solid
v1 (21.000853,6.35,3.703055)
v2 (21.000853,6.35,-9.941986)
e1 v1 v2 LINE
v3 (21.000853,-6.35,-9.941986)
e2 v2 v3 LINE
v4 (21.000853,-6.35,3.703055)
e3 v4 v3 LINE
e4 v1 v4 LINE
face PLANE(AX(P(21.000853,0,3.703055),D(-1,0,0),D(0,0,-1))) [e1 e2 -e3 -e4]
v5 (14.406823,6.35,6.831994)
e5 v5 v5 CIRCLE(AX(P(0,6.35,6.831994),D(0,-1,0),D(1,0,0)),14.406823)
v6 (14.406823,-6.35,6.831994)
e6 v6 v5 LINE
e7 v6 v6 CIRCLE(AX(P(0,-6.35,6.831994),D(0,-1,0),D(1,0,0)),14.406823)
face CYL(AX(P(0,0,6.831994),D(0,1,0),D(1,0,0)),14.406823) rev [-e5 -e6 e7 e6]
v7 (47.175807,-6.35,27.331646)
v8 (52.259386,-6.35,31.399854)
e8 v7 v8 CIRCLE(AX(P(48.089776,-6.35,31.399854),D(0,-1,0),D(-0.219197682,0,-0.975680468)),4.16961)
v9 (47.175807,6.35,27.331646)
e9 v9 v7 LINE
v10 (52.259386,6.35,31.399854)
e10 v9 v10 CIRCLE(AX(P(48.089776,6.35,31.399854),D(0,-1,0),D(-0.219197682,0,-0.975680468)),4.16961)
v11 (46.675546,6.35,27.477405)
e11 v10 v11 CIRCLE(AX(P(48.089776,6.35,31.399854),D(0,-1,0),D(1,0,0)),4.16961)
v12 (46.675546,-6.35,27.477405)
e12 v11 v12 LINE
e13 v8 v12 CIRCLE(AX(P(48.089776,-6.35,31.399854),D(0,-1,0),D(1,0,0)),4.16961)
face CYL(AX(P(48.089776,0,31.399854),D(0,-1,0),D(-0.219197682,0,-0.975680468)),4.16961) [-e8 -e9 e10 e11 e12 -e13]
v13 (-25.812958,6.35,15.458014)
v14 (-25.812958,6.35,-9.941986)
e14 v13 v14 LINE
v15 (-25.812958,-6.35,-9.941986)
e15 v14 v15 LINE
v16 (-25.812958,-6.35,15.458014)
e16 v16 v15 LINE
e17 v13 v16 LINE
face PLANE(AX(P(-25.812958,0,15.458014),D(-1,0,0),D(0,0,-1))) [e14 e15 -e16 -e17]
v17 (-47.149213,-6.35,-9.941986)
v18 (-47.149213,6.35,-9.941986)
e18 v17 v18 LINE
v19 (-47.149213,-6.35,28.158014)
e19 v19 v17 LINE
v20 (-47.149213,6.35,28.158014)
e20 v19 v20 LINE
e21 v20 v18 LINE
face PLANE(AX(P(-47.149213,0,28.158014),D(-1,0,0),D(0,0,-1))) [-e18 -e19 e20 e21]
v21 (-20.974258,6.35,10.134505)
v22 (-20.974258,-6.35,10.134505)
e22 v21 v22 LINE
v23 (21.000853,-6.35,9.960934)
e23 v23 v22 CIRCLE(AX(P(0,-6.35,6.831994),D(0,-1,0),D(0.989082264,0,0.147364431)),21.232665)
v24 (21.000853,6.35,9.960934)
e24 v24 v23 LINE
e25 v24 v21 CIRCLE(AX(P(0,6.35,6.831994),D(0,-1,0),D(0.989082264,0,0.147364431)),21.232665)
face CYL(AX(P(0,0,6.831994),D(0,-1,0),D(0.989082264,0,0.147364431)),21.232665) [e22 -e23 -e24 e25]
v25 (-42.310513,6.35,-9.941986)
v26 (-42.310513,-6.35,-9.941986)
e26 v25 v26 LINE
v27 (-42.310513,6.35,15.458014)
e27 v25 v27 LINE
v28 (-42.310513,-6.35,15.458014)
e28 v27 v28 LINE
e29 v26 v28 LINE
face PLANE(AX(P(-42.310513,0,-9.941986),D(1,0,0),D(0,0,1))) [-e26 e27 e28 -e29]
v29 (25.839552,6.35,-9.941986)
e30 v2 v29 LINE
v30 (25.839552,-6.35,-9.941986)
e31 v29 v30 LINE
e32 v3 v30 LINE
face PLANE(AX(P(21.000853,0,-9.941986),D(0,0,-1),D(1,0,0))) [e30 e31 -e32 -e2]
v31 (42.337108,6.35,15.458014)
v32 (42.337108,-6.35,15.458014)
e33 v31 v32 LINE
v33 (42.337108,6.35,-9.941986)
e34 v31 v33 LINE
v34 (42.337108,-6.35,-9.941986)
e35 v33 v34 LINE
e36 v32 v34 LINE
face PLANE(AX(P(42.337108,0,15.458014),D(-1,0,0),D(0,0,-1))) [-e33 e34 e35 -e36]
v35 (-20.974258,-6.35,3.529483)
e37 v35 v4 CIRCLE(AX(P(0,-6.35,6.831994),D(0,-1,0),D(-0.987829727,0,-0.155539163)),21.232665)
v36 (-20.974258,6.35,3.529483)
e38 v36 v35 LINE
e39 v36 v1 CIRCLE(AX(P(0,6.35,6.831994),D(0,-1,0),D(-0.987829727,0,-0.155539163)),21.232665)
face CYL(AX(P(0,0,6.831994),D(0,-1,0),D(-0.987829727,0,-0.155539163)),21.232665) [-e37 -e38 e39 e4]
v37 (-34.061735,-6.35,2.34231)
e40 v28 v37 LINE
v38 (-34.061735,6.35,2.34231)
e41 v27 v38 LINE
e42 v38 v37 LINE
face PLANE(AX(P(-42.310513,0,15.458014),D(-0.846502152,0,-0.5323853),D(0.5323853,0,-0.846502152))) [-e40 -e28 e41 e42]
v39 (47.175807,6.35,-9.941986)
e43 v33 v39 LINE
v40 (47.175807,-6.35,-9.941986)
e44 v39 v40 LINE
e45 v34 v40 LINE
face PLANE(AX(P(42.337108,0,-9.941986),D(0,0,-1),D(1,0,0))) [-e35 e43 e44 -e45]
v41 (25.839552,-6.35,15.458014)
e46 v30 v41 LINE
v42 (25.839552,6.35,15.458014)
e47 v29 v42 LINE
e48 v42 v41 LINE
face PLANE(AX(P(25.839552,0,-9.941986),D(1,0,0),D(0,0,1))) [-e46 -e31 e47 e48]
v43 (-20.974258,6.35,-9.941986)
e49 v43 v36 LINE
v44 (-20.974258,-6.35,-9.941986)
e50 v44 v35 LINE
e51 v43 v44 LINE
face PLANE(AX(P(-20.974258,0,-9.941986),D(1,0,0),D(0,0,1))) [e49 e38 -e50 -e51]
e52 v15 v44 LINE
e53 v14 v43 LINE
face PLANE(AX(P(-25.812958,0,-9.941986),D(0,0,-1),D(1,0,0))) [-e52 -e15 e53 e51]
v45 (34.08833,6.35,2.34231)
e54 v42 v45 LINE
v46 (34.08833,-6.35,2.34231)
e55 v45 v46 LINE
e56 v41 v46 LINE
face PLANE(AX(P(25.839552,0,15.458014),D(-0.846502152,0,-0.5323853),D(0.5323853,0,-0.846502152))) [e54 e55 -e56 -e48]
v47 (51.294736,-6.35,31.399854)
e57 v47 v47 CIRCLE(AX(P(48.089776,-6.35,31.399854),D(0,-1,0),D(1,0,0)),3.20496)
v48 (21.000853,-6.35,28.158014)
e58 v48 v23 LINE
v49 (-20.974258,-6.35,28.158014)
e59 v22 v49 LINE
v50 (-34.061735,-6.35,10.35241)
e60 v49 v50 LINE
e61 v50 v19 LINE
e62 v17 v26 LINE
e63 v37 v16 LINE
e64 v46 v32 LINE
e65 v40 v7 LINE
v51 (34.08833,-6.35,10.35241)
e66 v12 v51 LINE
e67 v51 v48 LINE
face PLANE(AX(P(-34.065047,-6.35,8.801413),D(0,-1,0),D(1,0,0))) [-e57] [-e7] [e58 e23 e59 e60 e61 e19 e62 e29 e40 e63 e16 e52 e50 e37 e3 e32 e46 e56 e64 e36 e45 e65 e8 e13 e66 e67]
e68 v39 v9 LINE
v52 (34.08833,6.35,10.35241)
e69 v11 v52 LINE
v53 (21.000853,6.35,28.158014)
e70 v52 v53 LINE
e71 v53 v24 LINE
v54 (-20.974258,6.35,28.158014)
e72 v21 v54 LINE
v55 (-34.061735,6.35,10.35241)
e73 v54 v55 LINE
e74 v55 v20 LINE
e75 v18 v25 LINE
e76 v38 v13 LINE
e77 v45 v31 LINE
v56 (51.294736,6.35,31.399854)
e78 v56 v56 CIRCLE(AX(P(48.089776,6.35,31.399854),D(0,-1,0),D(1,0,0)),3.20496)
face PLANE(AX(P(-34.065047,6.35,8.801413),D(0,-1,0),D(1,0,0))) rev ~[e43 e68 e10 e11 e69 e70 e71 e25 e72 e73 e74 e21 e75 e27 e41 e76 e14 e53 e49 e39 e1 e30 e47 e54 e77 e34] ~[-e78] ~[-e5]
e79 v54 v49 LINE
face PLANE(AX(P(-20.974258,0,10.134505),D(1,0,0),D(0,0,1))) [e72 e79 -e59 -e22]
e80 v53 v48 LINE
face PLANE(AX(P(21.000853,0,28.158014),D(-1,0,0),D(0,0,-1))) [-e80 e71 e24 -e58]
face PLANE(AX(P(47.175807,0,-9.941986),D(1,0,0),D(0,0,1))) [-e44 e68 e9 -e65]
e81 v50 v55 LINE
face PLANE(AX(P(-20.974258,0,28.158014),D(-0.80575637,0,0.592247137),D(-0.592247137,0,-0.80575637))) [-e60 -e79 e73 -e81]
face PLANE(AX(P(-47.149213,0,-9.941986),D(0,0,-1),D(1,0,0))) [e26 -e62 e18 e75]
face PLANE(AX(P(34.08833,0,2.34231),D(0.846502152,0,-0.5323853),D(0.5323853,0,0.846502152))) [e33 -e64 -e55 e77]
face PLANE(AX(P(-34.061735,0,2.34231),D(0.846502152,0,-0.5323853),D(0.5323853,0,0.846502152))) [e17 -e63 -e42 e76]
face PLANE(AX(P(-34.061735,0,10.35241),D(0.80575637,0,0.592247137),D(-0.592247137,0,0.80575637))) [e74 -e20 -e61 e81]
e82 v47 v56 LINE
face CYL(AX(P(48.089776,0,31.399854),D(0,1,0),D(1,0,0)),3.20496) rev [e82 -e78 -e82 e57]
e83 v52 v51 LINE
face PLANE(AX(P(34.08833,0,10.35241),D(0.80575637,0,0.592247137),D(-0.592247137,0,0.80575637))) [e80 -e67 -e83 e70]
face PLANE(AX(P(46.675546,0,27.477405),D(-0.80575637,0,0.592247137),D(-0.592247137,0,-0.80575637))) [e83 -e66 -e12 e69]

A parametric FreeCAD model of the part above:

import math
import FreeCAD as App
import Part
import Sketcher
Q = App.Units.Quantity

doc = App.newDocument("Part")
body = doc.addObject("PartDesign::Body", "Body")

sketch1 = body.newObject("Sketcher::SketchObject", "Sketch")
sketch1.AttachmentSupport = (doc.getObject("XZ_Plane"), [""])
sketch1.MapMode = "FlatFace"
sketch1.addGeometry(Part.LineSegment(App.Vector(-47.149213, -9.941986, 0), App.Vector(-42.310513, -9.941986, 0)), False)
sketch1.addGeometry(Part.LineSegment(App.Vector(-42.310513, -9.941986, 0), App.Vector(-42.310513, 15.458014, 0)), False)
sketch1.addGeometry(Part.LineSegment(App.Vector(-42.310513, 15.458014, 0), App.Vector(-34.061735, 2.34231, 0)), False)
sketch1.addGeometry(Part.LineSegment(App.Vector(-34.061735, 2.34231, 0), App.Vector(-25.812958, 15.458014, 0)), False)
sketch1.addGeometry(Part.LineSegment(App.Vector(-25.812958, 15.458014, 0), App.Vector(-25.812958, -9.941986, 0)), False)
sketch1.addGeometry(Part.LineSegment(App.Vector(-25.812958, -9.941986, 0), App.Vector(-20.974258, -9.941986, 0)), False)
sketch1.addGeometry(Part.LineSegment(App.Vector(-20.974258, -9.941986, 0), App.Vector(-20.974258, 3.529483, 0)), False)
sketch1.addGeometry(Part.ArcOfCircle(Part.Circle(App.Vector(0, 6.831994, 0), App.Vector(0, 0, 1), 21.232665), math.radians(-171.051933), math.radians(-8.474222)), False)
sketch1.addGeometry(Part.LineSegment(App.Vector(21.000853, 3.703055, 0), App.Vector(21.000853, -9.941986, 0)), False)
sketch1.addGeometry(Part.LineSegment(App.Vector(21.000853, -9.941986, 0), App.Vector(25.839552, -9.941986, 0)), False)
sketch1.addGeometry(Part.LineSegment(App.Vector(25.839552, -9.941986, 0), App.Vector(25.839552, 15.458014, 0)), False)
sketch1.addGeometry(Part.LineSegment(App.Vector(25.839552, 15.458014, 0), App.Vector(34.08833, 2.34231, 0)), False)
sketch1.addGeometry(Part.LineSegment(App.Vector(34.08833, 2.34231, 0), App.Vector(42.337108, 15.458014, 0)), False)
sketch1.addGeometry(Part.LineSegment(App.Vector(42.337108, 15.458014, 0), App.Vector(42.337108, -9.941986, 0)), False)
sketch1.addGeometry(Part.LineSegment(App.Vector(42.337108, -9.941986, 0), App.Vector(47.175807, -9.941986, 0)), False)
sketch1.addGeometry(Part.LineSegment(App.Vector(47.175807, -9.941986, 0), App.Vector(47.175807, 27.331646, 0)), False)
sketch1.addGeometry(Part.ArcOfCircle(Part.Circle(App.Vector(48.089776, 31.399854, 0), App.Vector(0, 0, 1), 4.16961), math.radians(-102.661913), math.radians(0)), False)
sketch1.addGeometry(Part.ArcOfCircle(Part.Circle(App.Vector(48.089776, 31.399854, 0), App.Vector(0, 0, 1), 4.16961), math.radians(0), math.radians(250.173339)), False)
sketch1.addGeometry(Part.LineSegment(App.Vector(46.675546, 27.477405, 0), App.Vector(34.08833, 10.35241, 0)), False)
sketch1.addGeometry(Part.LineSegment(App.Vector(34.08833, 10.35241, 0), App.Vector(21.000853, 28.158014, 0)), False)
sketch1.addGeometry(Part.LineSegment(App.Vector(21.000853, 28.158014, 0), App.Vector(21.000853, 9.960934, 0)), False)
sketch1.addGeometry(Part.ArcOfCircle(Part.Circle(App.Vector(0, 6.831994, 0), App.Vector(0, 0, 1), 21.232665), math.radians(8.474222), math.radians(171.051933)), False)
sketch1.addGeometry(Part.LineSegment(App.Vector(-20.974258, 10.134505, 0), App.Vector(-20.974258, 28.158014, 0)), False)
sketch1.addGeometry(Part.LineSegment(App.Vector(-20.974258, 28.158014, 0), App.Vector(-34.061735, 10.35241, 0)), False)
sketch1.addGeometry(Part.LineSegment(App.Vector(-34.061735, 10.35241, 0), App.Vector(-47.149213, 28.158014, 0)), False)
sketch1.addGeometry(Part.LineSegment(App.Vector(-47.149213, 28.158014, 0), App.Vector(-47.149213, -9.941986, 0)), False)
sketch1.addGeometry(Part.Circle(App.Vector(0, 6.831994, 0), App.Vector(0, 0, 1), 14.406823), False)
sketch1.addGeometry(Part.Circle(App.Vector(48.089776, 31.399854, 0), App.Vector(0, 0, 1), 3.20496), False)
sketch1.addConstraint(Sketcher.Constraint("Coincident", 0, 2, 1, 1))
sketch1.addConstraint(Sketcher.Constraint("Coincident", 1, 2, 2, 1))
sketch1.addConstraint(Sketcher.Constraint("Coincident", 2, 2, 3, 1))
sketch1.addConstraint(Sketcher.Constraint("Coincident", 3, 2, 4, 1))
sketch1.addConstraint(Sketcher.Constraint("Coincident", 4, 2, 5, 1))
sketch1.addConstraint(Sketcher.Constraint("Coincident", 5, 2, 6, 1))
sketch1.addConstraint(Sketcher.Constraint("Coincident", 6, 2, 7, 1))
sketch1.addConstraint(Sketcher.Constraint("Coincident", 7, 2, 8, 1))
sketch1.addConstraint(Sketcher.Constraint("Coincident", 8, 2, 9, 1))
sketch1.addConstraint(Sketcher.Constraint("Coincident", 9, 2, 10, 1))
sketch1.addConstraint(Sketcher.Constraint("Coincident", 10, 2, 11, 1))
sketch1.addConstraint(Sketcher.Constraint("Coincident", 11, 2, 12, 1))
sketch1.addConstraint(Sketcher.Constraint("Coincident", 12, 2, 13, 1))
sketch1.addConstraint(Sketcher.Constraint("Coincident", 13, 2, 14, 1))
sketch1.addConstraint(Sketcher.Constraint("Coincident", 14, 2, 15, 1))
sketch1.addConstraint(Sketcher.Constraint("Coincident", 15, 2, 16, 1))
sketch1.addConstraint(Sketcher.Constraint("Tangent", 16, 2, 17, 1))
sketch1.addConstraint(Sketcher.Constraint("Coincident", 17, 2, 18, 1))
sketch1.addConstraint(Sketcher.Constraint("Coincident", 18, 2, 19, 1))
sketch1.addConstraint(Sketcher.Constraint("Coincident", 19, 2, 20, 1))
sketch1.addConstraint(Sketcher.Constraint("Coincident", 20, 2, 21, 1))
sketch1.addConstraint(Sketcher.Constraint("Coincident", 21, 2, 22, 1))
sketch1.addConstraint(Sketcher.Constraint("Coincident", 22, 2, 23, 1))
sketch1.addConstraint(Sketcher.Constraint("Coincident", 23, 2, 24, 1))
sketch1.addConstraint(Sketcher.Constraint("Coincident", 24, 2, 25, 1))
sketch1.addConstraint(Sketcher.Constraint("Coincident", 25, 2, 0, 1))
sketch1.addConstraint(Sketcher.Constraint("Horizontal", 0))
sketch1.addConstraint(Sketcher.Constraint("Vertical", 1))
sketch1.addConstraint(Sketcher.Constraint("Vertical", 4))
sketch1.addConstraint(Sketcher.Constraint("Horizontal", 5))
sketch1.addConstraint(Sketcher.Constraint("Vertical", 6))
sketch1.addConstraint(Sketcher.Constraint("Vertical", 8))
sketch1.addConstraint(Sketcher.Constraint("Horizontal", 9))
sketch1.addConstraint(Sketcher.Constraint("Vertical", 10))
sketch1.addConstraint(Sketcher.Constraint("Vertical", 13))
sketch1.addConstraint(Sketcher.Constraint("Horizontal", 14))
sketch1.addConstraint(Sketcher.Constraint("Vertical", 15))
sketch1.addConstraint(Sketcher.Constraint("Vertical", 20))
sketch1.addConstraint(Sketcher.Constraint("Vertical", 22))
sketch1.addConstraint(Sketcher.Constraint("Vertical", 25))
sketch1.addConstraint(Sketcher.Constraint("Coincident", 21, 3, 7, 3))
sketch1.addConstraint(Sketcher.Constraint("Coincident", 26, 3, 7, 3))
sketch1.addConstraint(Sketcher.Constraint("Coincident", 27, 3, 16, 3))
sketch1.addConstraint(Sketcher.Constraint("Equal", 16, 17))
sketch1.addConstraint(Sketcher.Constraint("Equal", 7, 21))
sketch1.addConstraint(Sketcher.Constraint("PointOnObject", 7, 3, -2))
sketch1.addConstraint(Sketcher.Constraint("Parallel", 2, 11))
sketch1.addConstraint(Sketcher.Constraint("Parallel", 3, 12))
sketch1.addConstraint(Sketcher.Constraint("Parallel", 18, 23))
sketch1.addConstraint(Sketcher.Constraint("Parallel", 19, 24))
sketch1.addConstraint(Sketcher.Constraint("Horizontal", 1, 2, 3, 2))
sketch1.addConstraint(Sketcher.Constraint("Horizontal", 0, 2, 4, 2))
sketch1.addConstraint(Sketcher.Constraint("Horizontal", 5, 2, 8, 2))
sketch1.addConstraint(Sketcher.Constraint("Horizontal", 3, 2, 10, 2))
sketch1.addConstraint(Sketcher.Constraint("Horizontal", 2, 2, 11, 2))
sketch1.addConstraint(Sketcher.Constraint("Horizontal", 10, 2, 12, 2))
sketch1.addConstraint(Sketcher.Constraint("Horizontal", 9, 2, 13, 2))
sketch1.addConstraint(Sketcher.Constraint("Horizontal", 27, 3, 16, 2))
sketch1.addConstraint(Sketcher.Constraint("Horizontal", 19, 2, 22, 2))
sketch1.addConstraint(Sketcher.Constraint("Horizontal", 18, 2, 23, 2))
sketch1.addConstraint(Sketcher.Constraint("Horizontal", 22, 2, 24, 2))
sketch1.addConstraint(Sketcher.Constraint("Vertical", 11, 2, 18, 2))
sketch1.addConstraint(Sketcher.Constraint("Vertical", 8, 2, 19, 2))
sketch1.addConstraint(Sketcher.Constraint("Vertical", 6, 2, 21, 2))
sketch1.addConstraint(Sketcher.Constraint("Vertical", 2, 2, 23, 2))
sketch1.addConstraint(Sketcher.Constraint("Equal", 0, 5))
sketch1.addConstraint(Sketcher.Constraint("Equal", 9, 14))
sketch1.addConstraint(Sketcher.Constraint("Equal", 2, 3))
sketch1.addConstraint(Sketcher.Constraint("DistanceY", 1, 1, 1, 2, Q("1 in")))
sketch1.addConstraint(Sketcher.Constraint("DistanceY", 25, 2, 25, 1, Q("1.5 in")))
sketch1.addConstraint(Sketcher.Constraint("Distance", 2, Q("0.61 in")))
sketch1.addConstraint(Sketcher.Constraint("Distance", 19, Q("0.87 in")))
sketch1.addConstraint(Sketcher.Constraint("Diameter", 27, Q("6.40992 mm")))
sketch1.addConstraint(Sketcher.Constraint("DistanceX", 0, 1, 0, 2, Q("0.1905 in")))
sketch1.addConstraint(Sketcher.Constraint("Radius", 16, Q("4.16961 mm")))
sketch1.addConstraint(Sketcher.Constraint("Diameter", 26, Q("28.813646 mm")))
sketch1.addConstraint(Sketcher.Constraint("Radius", 7, Q("21.232665 mm")))
sketch1.addConstraint(Sketcher.Constraint("DistanceY", 6, 1, 6, 2, Q("13.471469 mm")))
sketch1.addConstraint(Sketcher.Constraint("DistanceY", 8, 2, 8, 1, Q("13.64504 mm")))
sketch1.addConstraint(Sketcher.Constraint("DistanceY", 15, 1, 15, 2, Q("37.273632 mm")))
sketch1.addConstraint(Sketcher.Constraint("DistanceY", 20, 2, 20, 1, Q("18.19708 mm")))
sketch1.addConstraint(Sketcher.Constraint("DistanceY", 7, 2, 16, 3, Q("27.696799 mm")))
sketch1.addConstraint(Sketcher.Constraint("DistanceY", 11, 2, 18, 2, Q("8.0101 mm")))
sketch1.addConstraint(Sketcher.Constraint("DistanceY", -1, 1, 2, 2, Q("2.34231 mm")))
pad1 = body.newObject("PartDesign::Pad", "Pad")
pad1.Profile = sketch1
pad1.Length = Q("0.5 in")
pad1.Midplane = True

doc.recompute()
